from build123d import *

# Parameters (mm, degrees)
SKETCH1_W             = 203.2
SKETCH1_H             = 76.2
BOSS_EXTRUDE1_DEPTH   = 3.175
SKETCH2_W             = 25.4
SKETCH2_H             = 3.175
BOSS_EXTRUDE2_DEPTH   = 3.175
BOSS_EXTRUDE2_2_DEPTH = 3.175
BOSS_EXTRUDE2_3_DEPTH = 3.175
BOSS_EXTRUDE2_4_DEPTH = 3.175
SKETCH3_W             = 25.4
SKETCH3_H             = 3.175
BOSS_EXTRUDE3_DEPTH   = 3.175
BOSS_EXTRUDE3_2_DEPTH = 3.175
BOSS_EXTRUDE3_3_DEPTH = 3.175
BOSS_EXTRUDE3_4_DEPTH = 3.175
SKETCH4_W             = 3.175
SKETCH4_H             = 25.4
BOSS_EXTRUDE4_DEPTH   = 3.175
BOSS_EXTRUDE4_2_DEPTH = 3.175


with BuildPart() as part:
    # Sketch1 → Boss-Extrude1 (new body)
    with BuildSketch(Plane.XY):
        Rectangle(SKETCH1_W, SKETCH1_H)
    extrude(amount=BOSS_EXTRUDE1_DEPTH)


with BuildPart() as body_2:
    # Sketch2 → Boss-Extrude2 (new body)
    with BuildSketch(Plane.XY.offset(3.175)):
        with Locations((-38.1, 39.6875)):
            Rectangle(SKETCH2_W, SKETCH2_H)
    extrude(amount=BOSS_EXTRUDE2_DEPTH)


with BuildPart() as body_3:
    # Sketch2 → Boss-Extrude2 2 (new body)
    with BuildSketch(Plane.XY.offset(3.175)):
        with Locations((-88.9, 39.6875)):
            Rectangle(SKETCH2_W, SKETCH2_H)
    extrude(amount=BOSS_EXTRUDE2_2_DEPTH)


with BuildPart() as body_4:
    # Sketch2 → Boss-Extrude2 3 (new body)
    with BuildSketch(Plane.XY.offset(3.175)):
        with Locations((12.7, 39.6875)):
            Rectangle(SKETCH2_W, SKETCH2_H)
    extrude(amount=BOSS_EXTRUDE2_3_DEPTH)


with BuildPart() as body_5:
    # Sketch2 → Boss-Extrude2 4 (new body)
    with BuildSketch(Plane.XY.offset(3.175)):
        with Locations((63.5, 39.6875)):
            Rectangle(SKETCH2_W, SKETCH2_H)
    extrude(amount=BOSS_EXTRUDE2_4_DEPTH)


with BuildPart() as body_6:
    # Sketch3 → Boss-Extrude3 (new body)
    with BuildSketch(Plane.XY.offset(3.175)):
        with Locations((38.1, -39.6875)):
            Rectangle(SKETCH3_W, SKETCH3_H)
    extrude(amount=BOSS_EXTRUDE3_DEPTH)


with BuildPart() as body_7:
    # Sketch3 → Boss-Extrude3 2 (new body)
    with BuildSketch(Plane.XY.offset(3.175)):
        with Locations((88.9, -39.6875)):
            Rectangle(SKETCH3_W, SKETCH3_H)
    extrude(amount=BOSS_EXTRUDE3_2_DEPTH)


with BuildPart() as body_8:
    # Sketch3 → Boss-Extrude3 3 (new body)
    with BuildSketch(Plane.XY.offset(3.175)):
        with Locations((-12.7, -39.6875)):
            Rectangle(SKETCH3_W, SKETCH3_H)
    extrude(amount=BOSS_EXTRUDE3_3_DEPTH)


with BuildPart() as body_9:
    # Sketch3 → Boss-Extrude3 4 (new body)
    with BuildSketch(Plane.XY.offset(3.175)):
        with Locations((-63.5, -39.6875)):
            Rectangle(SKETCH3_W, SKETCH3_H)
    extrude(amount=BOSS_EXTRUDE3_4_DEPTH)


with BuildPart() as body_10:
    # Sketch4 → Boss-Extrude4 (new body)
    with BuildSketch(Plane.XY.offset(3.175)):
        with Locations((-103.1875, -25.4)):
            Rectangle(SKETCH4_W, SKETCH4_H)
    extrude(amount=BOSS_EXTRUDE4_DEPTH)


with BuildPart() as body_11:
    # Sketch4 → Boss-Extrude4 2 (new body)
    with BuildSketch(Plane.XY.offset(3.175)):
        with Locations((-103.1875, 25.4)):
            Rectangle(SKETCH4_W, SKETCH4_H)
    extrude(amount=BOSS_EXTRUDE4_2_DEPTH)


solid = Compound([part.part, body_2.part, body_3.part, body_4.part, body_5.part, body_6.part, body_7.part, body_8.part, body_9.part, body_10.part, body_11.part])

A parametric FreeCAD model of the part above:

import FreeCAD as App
import Part
import Sketcher
Q = App.Units.Quantity


def add_polygon(sketch, points):
    """Adds a closed chain of lines whose ends are joined by coincident constraints."""
    first, n = sketch.GeometryCount, len(points)
    for a, b in zip(points, points[1:] + points[:1]):
        sketch.addGeometry(Part.LineSegment(App.Vector(*a, 0), App.Vector(*b, 0)), False)
    for i in range(n):
        sketch.addConstraint(Sketcher.Constraint("Coincident", first + i, 2, first + (i + 1) % n, 1))

doc = App.newDocument("Part")
params = doc.addObject("Spreadsheet::Sheet", "Params")
for row, (alias, value) in enumerate([
    ("sketch1_width", "8 in"),
    ("sketch1_height", "3 in"),
    ("pad1_length", "0.125 in"),
    ("sketch2_width", "1 in"),
    ("sketch2_height", "0.125 in"),
    ("pad2_length", "0.125 in"),
    ("sketch3_width", "1 in"),
    ("sketch3_height", "0.125 in"),
    ("pad3_length", "0.125 in"),
    ("sketch4_width", "1 in"),
    ("sketch4_height", "0.125 in"),
    ("pad4_length", "0.125 in"),
    ("sketch5_width", "1 in"),
    ("sketch5_height", "0.125 in"),
    ("pad5_length", "0.125 in"),
    ("sketch6_width", "1 in"),
    ("sketch6_height", "0.125 in"),
    ("pad6_length", "0.125 in"),
    ("sketch7_width", "1 in"),
    ("sketch7_height", "0.125 in"),
    ("pad7_length", "0.125 in"),
    ("sketch8_width", "1 in"),
    ("sketch8_height", "0.125 in"),
    ("pad8_length", "0.125 in"),
    ("sketch9_width", "1 in"),
    ("sketch9_height", "0.125 in"),
    ("pad9_length", "0.125 in"),
    ("sketch10_height", "1 in"),
    ("sketch10_width", "0.125 in"),
    ("pad10_length", "0.125 in"),
    ("sketch11_height", "1 in"),
    ("sketch11_width", "0.125 in"),
    ("pad11_length", "0.125 in"),
], start=1):
    params.set(f"A{row}", alias)
    params.set(f"B{row}", "=" + value)
    params.setAlias(f"B{row}", alias)

body = doc.addObject("PartDesign::Body", "Body")

sketch1 = doc.addObject("Sketcher::SketchObject", "Sketch")
body.addObject(sketch1)
sketch1.AttachmentSupport = (doc.XY_Plane, [""])
sketch1.MapMode = "FlatFace"
add_polygon(sketch1, [(-101.6, 38.1), (-101.6, -38.1), (101.6, -38.1), (101.6, 38.1)])
sketch1.addConstraint([
    Sketcher.Constraint("Vertical", 0),
    Sketcher.Constraint("Horizontal", 1),
    Sketcher.Constraint("Vertical", 2),
    Sketcher.Constraint("Horizontal", 3),
    Sketcher.Constraint("Symmetric", 0, 2, 2, 2, -1, 1),
    Sketcher.Constraint("DistanceX", 1, 1, 1, 2, Q("8 in")),
    Sketcher.Constraint("DistanceY", 0, 2, 0, 1, Q("3 in")),
])
sketch1.setExpression("Constraints[9]", "Params.sketch1_width")
sketch1.setExpression("Constraints[10]", "Params.sketch1_height")
pad1 = doc.addObject("PartDesign::Pad", "Pad")
body.addObject(pad1)
pad1.Profile = sketch1
pad1.setExpression("Length", "Params.pad1_length")
body2 = doc.addObject("PartDesign::Body", "Body001")

sketch2 = doc.addObject("Sketcher::SketchObject", "Sketch001")
body2.addObject(sketch2)
sketch2.AttachmentSupport = (doc.getObject("XY_Plane001"), [""])
sketch2.MapMode = "FlatFace"
sketch2.AttachmentOffset = App.Placement(App.Vector(0, 0, 0.125 * 25.4), App.Rotation())
add_polygon(sketch2, [(-50.8, 41.275), (-50.8, 38.1), (-25.4, 38.1), (-25.4, 41.275)])
sketch2.addConstraint([
    Sketcher.Constraint("Vertical", 0),
    Sketcher.Constraint("Horizontal", 1),
    Sketcher.Constraint("Vertical", 2),
    Sketcher.Constraint("Horizontal", 3),
    Sketcher.Constraint("DistanceX", 1, 1, 1, 2, Q("1 in")),
    Sketcher.Constraint("DistanceX", 0, 2, -1, 1, Q("2 in")),
    Sketcher.Constraint("DistanceY", -1, 1, 0, 2, Q("1.5 in")),
    Sketcher.Constraint("DistanceY", 0, 2, 0, 1, Q("0.125 in")),
])
sketch2.setExpression("Constraints[8]", "Params.sketch2_width")
sketch2.setExpression("Constraints[11]", "Params.sketch2_height")
pad2 = doc.addObject("PartDesign::Pad", "Pad001")
body2.addObject(pad2)
pad2.Profile = sketch2
pad2.setExpression("Length", "Params.pad2_length")
body3 = doc.addObject("PartDesign::Body", "Body002")

sketch3 = doc.addObject("Sketcher::SketchObject", "Sketch002")
body3.addObject(sketch3)
sketch3.AttachmentSupport = (doc.getObject("XY_Plane002"), [""])
sketch3.MapMode = "FlatFace"
sketch3.AttachmentOffset = App.Placement(App.Vector(0, 0, 0.125 * 25.4), App.Rotation())
add_polygon(sketch3, [(-101.6, 41.275), (-101.6, 38.1), (-76.2, 38.1), (-76.2, 41.275)])
sketch3.addConstraint([
    Sketcher.Constraint("Vertical", 0),
    Sketcher.Constraint("Horizontal", 1),
    Sketcher.Constraint("Vertical", 2),
    Sketcher.Constraint("Horizontal", 3),
    Sketcher.Constraint("DistanceX", 1, 1, 1, 2, Q("1 in")),
    Sketcher.Constraint("DistanceX", 0, 2, -1, 1, Q("4 in")),
    Sketcher.Constraint("DistanceY", -1, 1, 0, 2, Q("1.5 in")),
    Sketcher.Constraint("DistanceY", 0, 2, 0, 1, Q("0.125 in")),
])
sketch3.setExpression("Constraints[8]", "Params.sketch3_width")
sketch3.setExpression("Constraints[11]", "Params.sketch3_height")
pad3 = doc.addObject("PartDesign::Pad", "Pad002")
body3.addObject(pad3)
pad3.Profile = sketch3
pad3.setExpression("Length", "Params.pad3_length")
body4 = doc.addObject("PartDesign::Body", "Body003")

sketch4 = doc.addObject("Sketcher::SketchObject", "Sketch003")
body4.addObject(sketch4)
sketch4.AttachmentSupport = (doc.getObject("XY_Plane003"), [""])
sketch4.MapMode = "FlatFace"
sketch4.AttachmentOffset = App.Placement(App.Vector(0, 0, 0.125 * 25.4), App.Rotation())
add_polygon(sketch4, [(0, 41.275), (0, 38.1), (25.4, 38.1), (25.4, 41.275)])
sketch4.addConstraint([
    Sketcher.Constraint("Vertical", 0),
    Sketcher.Constraint("Horizontal", 1),
    Sketcher.Constraint("Vertical", 2),
    Sketcher.Constraint("Horizontal", 3),
    Sketcher.Constraint("PointOnObject", 0, 2, -2),
    Sketcher.Constraint("DistanceX", 1, 1, 1, 2, Q("1 in")),
    Sketcher.Constraint("DistanceY", -1, 1, 0, 2, Q("1.5 in")),
    Sketcher.Constraint("DistanceY", 0, 2, 0, 1, Q("0.125 in")),
])
sketch4.setExpression("Constraints[9]", "Params.sketch4_width")
sketch4.setExpression("Constraints[11]", "Params.sketch4_height")
pad4 = doc.addObject("PartDesign::Pad", "Pad003")
body4.addObject(pad4)
pad4.Profile = sketch4
pad4.setExpression("Length", "Params.pad4_length")
body5 = doc.addObject("PartDesign::Body", "Body004")

sketch5 = doc.addObject("Sketcher::SketchObject", "Sketch004")
body5.addObject(sketch5)
sketch5.AttachmentSupport = (doc.getObject("XY_Plane004"), [""])
sketch5.MapMode = "FlatFace"
sketch5.AttachmentOffset = App.Placement(App.Vector(0, 0, 0.125 * 25.4), App.Rotation())
add_polygon(sketch5, [(50.8, 41.275), (50.8, 38.1), (76.2, 38.1), (76.2, 41.275)])
sketch5.addConstraint([
    Sketcher.Constraint("Vertical", 0),
    Sketcher.Constraint("Horizontal", 1),
    Sketcher.Constraint("Vertical", 2),
    Sketcher.Constraint("Horizontal", 3),
    Sketcher.Constraint("DistanceX", 1, 1, 1, 2, Q("1 in")),
    Sketcher.Constraint("DistanceX", -1, 1, 0, 2, Q("2 in")),
    Sketcher.Constraint("DistanceY", -1, 1, 0, 2, Q("1.5 in")),
    Sketcher.Constraint("DistanceY", 0, 2, 0, 1, Q("0.125 in")),
])
sketch5.setExpression("Constraints[8]", "Params.sketch5_width")
sketch5.setExpression("Constraints[11]", "Params.sketch5_height")
pad5 = doc.addObject("PartDesign::Pad", "Pad004")
body5.addObject(pad5)
pad5.Profile = sketch5
pad5.setExpression("Length", "Params.pad5_length")
body6 = doc.addObject("PartDesign::Body", "Body005")

sketch6 = doc.addObject("Sketcher::SketchObject", "Sketch005")
body6.addObject(sketch6)
sketch6.AttachmentSupport = (doc.getObject("XY_Plane005"), [""])
sketch6.MapMode = "FlatFace"
sketch6.AttachmentOffset = App.Placement(App.Vector(0, 0, 0.125 * 25.4), App.Rotation())
add_polygon(sketch6, [(25.4, -38.1), (25.4, -41.275), (50.8, -41.275), (50.8, -38.1)])
sketch6.addConstraint([
    Sketcher.Constraint("Vertical", 0),
    Sketcher.Constraint("Horizontal", 1),
    Sketcher.Constraint("Vertical", 2),
    Sketcher.Constraint("Horizontal", 3),
    Sketcher.Constraint("DistanceX", 1, 1, 1, 2, Q("1 in")),
    Sketcher.Constraint("DistanceX", -1, 1, 0, 2, Q("1 in")),
    Sketcher.Constraint("DistanceY", 2, 2, -1, 1, Q("1.5 in")),
    Sketcher.Constraint("DistanceY", 0, 2, 0, 1, Q("0.125 in")),
])
sketch6.setExpression("Constraints[8]", "Params.sketch6_width")
sketch6.setExpression("Constraints[11]", "Params.sketch6_height")
pad6 = doc.addObject("PartDesign::Pad", "Pad005")
body6.addObject(pad6)
pad6.Profile = sketch6
pad6.setExpression("Length", "Params.pad6_length")
body7 = doc.addObject("PartDesign::Body", "Body006")

sketch7 = doc.addObject("Sketcher::SketchObject", "Sketch006")
body7.addObject(sketch7)
sketch7.AttachmentSupport = (doc.getObject("XY_Plane006"), [""])
sketch7.MapMode = "FlatFace"
sketch7.AttachmentOffset = App.Placement(App.Vector(0, 0, 0.125 * 25.4), App.Rotation())
add_polygon(sketch7, [(76.2, -38.1), (76.2, -41.275), (101.6, -41.275), (101.6, -38.1)])
sketch7.addConstraint([
    Sketcher.Constraint("Vertical", 0),
    Sketcher.Constraint("Horizontal", 1),
    Sketcher.Constraint("Vertical", 2),
    Sketcher.Constraint("Horizontal", 3),
    Sketcher.Constraint("DistanceX", 1, 1, 1, 2, Q("1 in")),
    Sketcher.Constraint("DistanceX", -1, 1, 0, 2, Q("3 in")),
    Sketcher.Constraint("DistanceY", 2, 2, -1, 1, Q("1.5 in")),
    Sketcher.Constraint("DistanceY", 0, 2, 0, 1, Q("0.125 in")),
])
sketch7.setExpression("Constraints[8]", "Params.sketch7_width")
sketch7.setExpression("Constraints[11]", "Params.sketch7_height")
pad7 = doc.addObject("PartDesign::Pad", "Pad006")
body7.addObject(pad7)
pad7.Profile = sketch7
pad7.setExpression("Length", "Params.pad7_length")
body8 = doc.addObject("PartDesign::Body", "Body007")

sketch8 = doc.addObject("Sketcher::SketchObject", "Sketch007")
body8.addObject(sketch8)
sketch8.AttachmentSupport = (doc.getObject("XY_Plane007"), [""])
sketch8.MapMode = "FlatFace"
sketch8.AttachmentOffset = App.Placement(App.Vector(0, 0, 0.125 * 25.4), App.Rotation())
add_polygon(sketch8, [(-25.4, -38.1), (-25.4, -41.275), (0, -41.275), (0, -38.1)])
sketch8.addConstraint([
    Sketcher.Constraint("Vertical", 0),
    Sketcher.Constraint("Horizontal", 1),
    Sketcher.Constraint("Vertical", 2),
    Sketcher.Constraint("Horizontal", 3),
    Sketcher.Constraint("PointOnObject", 1, 2, -2),
    Sketcher.Constraint("DistanceX", 1, 1, 1, 2, Q("1 in")),
    Sketcher.Constraint("DistanceY", 2, 2, -1, 1, Q("1.5 in")),
    Sketcher.Constraint("DistanceY", 0, 2, 0, 1, Q("0.125 in")),
])
sketch8.setExpression("Constraints[9]", "Params.sketch8_width")
sketch8.setExpression("Constraints[11]", "Params.sketch8_height")
pad8 = doc.addObject("PartDesign::Pad", "Pad007")
body8.addObject(pad8)
pad8.Profile = sketch8
pad8.setExpression("Length", "Params.pad8_length")
body9 = doc.addObject("PartDesign::Body", "Body008")

sketch9 = doc.addObject("Sketcher::SketchObject", "Sketch008")
body9.addObject(sketch9)
sketch9.AttachmentSupport = (doc.getObject("XY_Plane008"), [""])
sketch9.MapMode = "FlatFace"
sketch9.AttachmentOffset = App.Placement(App.Vector(0, 0, 0.125 * 25.4), App.Rotation())
add_polygon(sketch9, [(-76.2, -38.1), (-76.2, -41.275), (-50.8, -41.275), (-50.8, -38.1)])
sketch9.addConstraint([
    Sketcher.Constraint("Vertical", 0),
    Sketcher.Constraint("Horizontal", 1),
    Sketcher.Constraint("Vertical", 2),
    Sketcher.Constraint("Horizontal", 3),
    Sketcher.Constraint("DistanceX", 1, 1, 1, 2, Q("1 in")),
    Sketcher.Constraint("DistanceX", 0, 2, -1, 1, Q("3 in")),
    Sketcher.Constraint("DistanceY", 2, 2, -1, 1, Q("1.5 in")),
    Sketcher.Constraint("DistanceY", 0, 2, 0, 1, Q("0.125 in")),
])
sketch9.setExpression("Constraints[8]", "Params.sketch9_width")
sketch9.setExpression("Constraints[11]", "Params.sketch9_height")
pad9 = doc.addObject("PartDesign::Pad", "Pad008")
body9.addObject(pad9)
pad9.Profile = sketch9
pad9.setExpression("Length", "Params.pad9_length")
body10 = doc.addObject("PartDesign::Body", "Body009")

sketch10 = doc.addObject("Sketcher::SketchObject", "Sketch009")
body10.addObject(sketch10)
sketch10.AttachmentSupport = (doc.getObject("XY_Plane009"), [""])
sketch10.MapMode = "FlatFace"
sketch10.AttachmentOffset = App.Placement(App.Vector(0, 0, 0.125 * 25.4), App.Rotation())
add_polygon(sketch10, [(-104.775, -12.7), (-104.775, -38.1), (-101.6, -38.1), (-101.6, -12.7)])
sketch10.addConstraint([
    Sketcher.Constraint("Vertical", 0),
    Sketcher.Constraint("Horizontal", 1),
    Sketcher.Constraint("Vertical", 2),
    Sketcher.Constraint("Horizontal", 3),
    Sketcher.Constraint("DistanceY", 0, 2, 0, 1, Q("1 in")),
    Sketcher.Constraint("DistanceX", 1, 2, -1, 1, Q("4 in")),
    Sketcher.Constraint("DistanceY", 0, 2, -1, 1, Q("1.5 in")),
    Sketcher.Constraint("DistanceX", 1, 1, 1, 2, Q("0.125 in")),
])
sketch10.setExpression("Constraints[8]", "Params.sketch10_height")
sketch10.setExpression("Constraints[11]", "Params.sketch10_width")
pad10 = doc.addObject("PartDesign::Pad", "Pad009")
body10.addObject(pad10)
pad10.Profile = sketch10
pad10.setExpression("Length", "Params.pad10_length")
body11 = doc.addObject("PartDesign::Body", "Body010")

sketch11 = doc.addObject("Sketcher::SketchObject", "Sketch010")
body11.addObject(sketch11)
sketch11.AttachmentSupport = (doc.getObject("XY_Plane010"), [""])
sketch11.MapMode = "FlatFace"
sketch11.AttachmentOffset = App.Placement(App.Vector(0, 0, 0.125 * 25.4), App.Rotation())
add_polygon(sketch11, [(-104.775, 38.1), (-104.775, 12.7), (-101.6, 12.7), (-101.6, 38.1)])
sketch11.addConstraint([
    Sketcher.Constraint("Vertical", 0),
    Sketcher.Constraint("Horizontal", 1),
    Sketcher.Constraint("Vertical", 2),
    Sketcher.Constraint("Horizontal", 3),
    Sketcher.Constraint("DistanceY", 0, 2, 0, 1, Q("1 in")),
    Sketcher.Constraint("DistanceX", 1, 2, -1, 1, Q("4 in")),
    Sketcher.Constraint("DistanceY", -1, 1, 0, 2, Q("0.5 in")),
    Sketcher.Constraint("DistanceX", 1, 1, 1, 2, Q("0.125 in")),
])
sketch11.setExpression("Constraints[8]", "Params.sketch11_height")
sketch11.setExpression("Constraints[11]", "Params.sketch11_width")
pad11 = doc.addObject("PartDesign::Pad", "Pad010")
body11.addObject(pad11)
pad11.Profile = sketch11
pad11.setExpression("Length", "Params.pad11_length")

doc.recompute()
